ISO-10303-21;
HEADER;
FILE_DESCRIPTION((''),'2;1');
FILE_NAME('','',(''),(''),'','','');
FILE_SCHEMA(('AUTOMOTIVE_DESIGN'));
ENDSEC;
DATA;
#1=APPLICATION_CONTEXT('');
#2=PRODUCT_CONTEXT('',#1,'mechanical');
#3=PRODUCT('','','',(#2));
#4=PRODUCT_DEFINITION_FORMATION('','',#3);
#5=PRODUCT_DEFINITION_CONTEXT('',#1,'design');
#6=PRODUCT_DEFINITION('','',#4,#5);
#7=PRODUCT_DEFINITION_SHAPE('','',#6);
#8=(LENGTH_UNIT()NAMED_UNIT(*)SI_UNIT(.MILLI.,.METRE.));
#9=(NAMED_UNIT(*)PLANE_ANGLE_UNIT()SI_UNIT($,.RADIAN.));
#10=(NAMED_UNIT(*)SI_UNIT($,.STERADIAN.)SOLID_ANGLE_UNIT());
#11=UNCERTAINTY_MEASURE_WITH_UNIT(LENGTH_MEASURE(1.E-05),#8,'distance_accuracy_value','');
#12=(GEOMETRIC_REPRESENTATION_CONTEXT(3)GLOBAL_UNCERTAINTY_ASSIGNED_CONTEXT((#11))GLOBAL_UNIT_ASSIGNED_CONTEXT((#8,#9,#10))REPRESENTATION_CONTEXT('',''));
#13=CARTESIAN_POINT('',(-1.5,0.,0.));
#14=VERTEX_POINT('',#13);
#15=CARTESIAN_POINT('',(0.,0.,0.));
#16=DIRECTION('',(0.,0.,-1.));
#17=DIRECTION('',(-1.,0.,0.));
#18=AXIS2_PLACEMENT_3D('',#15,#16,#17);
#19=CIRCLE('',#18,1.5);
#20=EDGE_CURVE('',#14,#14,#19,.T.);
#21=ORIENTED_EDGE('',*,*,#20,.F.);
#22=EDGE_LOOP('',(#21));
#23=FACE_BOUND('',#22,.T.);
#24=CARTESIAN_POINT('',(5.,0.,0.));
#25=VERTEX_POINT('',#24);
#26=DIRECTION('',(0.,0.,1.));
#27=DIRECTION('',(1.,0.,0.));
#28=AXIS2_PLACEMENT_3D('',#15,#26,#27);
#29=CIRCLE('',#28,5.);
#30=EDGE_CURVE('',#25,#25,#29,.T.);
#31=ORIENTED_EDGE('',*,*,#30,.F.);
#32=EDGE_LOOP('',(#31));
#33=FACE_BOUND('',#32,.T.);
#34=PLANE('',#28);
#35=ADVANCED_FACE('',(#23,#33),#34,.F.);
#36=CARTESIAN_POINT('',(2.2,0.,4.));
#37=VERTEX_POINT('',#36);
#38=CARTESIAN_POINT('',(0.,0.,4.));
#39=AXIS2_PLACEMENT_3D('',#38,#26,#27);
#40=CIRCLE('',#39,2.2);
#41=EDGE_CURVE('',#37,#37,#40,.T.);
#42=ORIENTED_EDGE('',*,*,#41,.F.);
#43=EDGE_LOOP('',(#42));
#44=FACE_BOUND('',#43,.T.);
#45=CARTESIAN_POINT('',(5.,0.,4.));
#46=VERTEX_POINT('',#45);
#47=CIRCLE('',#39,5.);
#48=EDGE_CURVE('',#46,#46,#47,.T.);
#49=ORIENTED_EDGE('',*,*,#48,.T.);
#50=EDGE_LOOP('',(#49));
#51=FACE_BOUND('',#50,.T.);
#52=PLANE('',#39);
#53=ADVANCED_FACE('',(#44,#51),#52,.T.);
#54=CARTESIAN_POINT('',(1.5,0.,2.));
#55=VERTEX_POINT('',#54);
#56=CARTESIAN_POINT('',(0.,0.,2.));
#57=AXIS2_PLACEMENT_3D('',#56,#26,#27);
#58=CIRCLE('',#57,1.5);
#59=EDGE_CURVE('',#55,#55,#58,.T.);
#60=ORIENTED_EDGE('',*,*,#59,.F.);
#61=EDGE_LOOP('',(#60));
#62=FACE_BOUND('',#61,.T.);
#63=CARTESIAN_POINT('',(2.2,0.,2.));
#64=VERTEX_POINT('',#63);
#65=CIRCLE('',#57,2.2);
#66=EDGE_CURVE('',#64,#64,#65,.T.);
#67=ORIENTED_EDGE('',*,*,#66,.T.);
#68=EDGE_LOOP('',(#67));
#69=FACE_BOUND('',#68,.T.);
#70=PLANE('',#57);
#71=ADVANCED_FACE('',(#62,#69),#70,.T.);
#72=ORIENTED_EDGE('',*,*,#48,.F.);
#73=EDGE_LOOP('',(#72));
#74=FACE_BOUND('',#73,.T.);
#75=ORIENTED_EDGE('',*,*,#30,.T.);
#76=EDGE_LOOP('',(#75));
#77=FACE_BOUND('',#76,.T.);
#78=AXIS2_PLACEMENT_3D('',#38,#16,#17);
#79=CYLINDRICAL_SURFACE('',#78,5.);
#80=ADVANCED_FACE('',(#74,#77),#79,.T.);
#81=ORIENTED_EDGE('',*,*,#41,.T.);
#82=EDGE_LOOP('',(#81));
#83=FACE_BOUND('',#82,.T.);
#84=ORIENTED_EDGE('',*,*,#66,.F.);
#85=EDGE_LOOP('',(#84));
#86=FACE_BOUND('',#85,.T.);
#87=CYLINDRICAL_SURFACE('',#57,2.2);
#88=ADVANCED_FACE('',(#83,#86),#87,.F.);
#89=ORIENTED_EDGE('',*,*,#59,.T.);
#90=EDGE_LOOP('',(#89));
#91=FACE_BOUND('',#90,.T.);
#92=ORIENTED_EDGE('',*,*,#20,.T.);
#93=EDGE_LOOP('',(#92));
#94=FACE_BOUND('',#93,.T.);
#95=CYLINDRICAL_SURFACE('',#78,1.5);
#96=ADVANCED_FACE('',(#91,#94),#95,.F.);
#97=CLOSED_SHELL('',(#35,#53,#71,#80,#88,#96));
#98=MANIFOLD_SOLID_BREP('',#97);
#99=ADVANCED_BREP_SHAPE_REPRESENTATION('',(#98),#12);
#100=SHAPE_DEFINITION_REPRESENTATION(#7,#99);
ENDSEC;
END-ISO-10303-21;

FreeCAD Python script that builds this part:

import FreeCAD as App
import Part
import Sketcher

V = App.Vector

doc = App.newDocument("Part")
params = doc.addObject("Spreadsheet::Sheet", "Params")
for row, (alias, value) in enumerate([
    ("sketch1_diameter", "10 mm"),
    ("pad1_length", "4 mm"),
    ("sketch2_diameter", "4.4 mm"),
    ("pocket1_length", "2 mm"),
    ("sketch3_diameter", "3 mm"),
], start=1):
    params.set(f"A{row}", alias)
    params.set(f"B{row}", "=" + value)
    params.setAlias(f"B{row}", alias)

body = doc.addObject("PartDesign::Body", "Body")

# Sketch on XY plane
sketch1 = doc.addObject("Sketcher::SketchObject", "Sketch")
body.addObject(sketch1)
sketch1.AttachmentSupport = (doc.XY_Plane, [""])
sketch1.MapMode = "FlatFace"
sketch1.addGeometry(Part.Circle(V(0, 0, 0), V(0, 0, 1), 5), False)
sketch1.addConstraint([
    Sketcher.Constraint("Coincident", 0, 3, -1, 1),
    Sketcher.Constraint("Diameter", 0, 10.0),
])
sketch1.setExpression("Constraints[1]", "Params.sketch1_diameter")
pad1 = doc.addObject("PartDesign::Pad", "Pad")
body.addObject(pad1)
pad1.Profile = sketch1
pad1.setExpression("Length", "Params.pad1_length")

# Sketch on XY plane
sketch2 = doc.addObject("Sketcher::SketchObject", "Sketch001")
body.addObject(sketch2)
sketch2.AttachmentSupport = (doc.XY_Plane, [""])
sketch2.MapMode = "FlatFace"
sketch2.AttachmentOffset = App.Placement(V(0, 0, 4), App.Rotation())
sketch2.addGeometry(Part.Circle(V(0, 0, 0), V(0, 0, 1), 2.2), False)
sketch2.addConstraint([
    Sketcher.Constraint("Coincident", 0, 3, -1, 1),
    Sketcher.Constraint("Diameter", 0, 4.4),
])
sketch2.setExpression("Constraints[1]", "Params.sketch2_diameter")
pocket1 = doc.addObject("PartDesign::Pocket", "Pocket")
body.addObject(pocket1)
pocket1.Profile = sketch2
pocket1.setExpression("Length", "Params.pocket1_length")

# Sketch on XY plane
sketch3 = doc.addObject("Sketcher::SketchObject", "Sketch002")
body.addObject(sketch3)
sketch3.AttachmentSupport = (doc.XY_Plane, [""])
sketch3.MapMode = "FlatFace"
sketch3.addGeometry(Part.Circle(V(0, 0, 0), V(0, 0, 1), 1.5), False)
sketch3.addConstraint([
    Sketcher.Constraint("Coincident", 0, 3, -1, 1),
    Sketcher.Constraint("Diameter", 0, 3.0),
])
sketch3.setExpression("Constraints[1]", "Params.sketch3_diameter")
pocket2 = doc.addObject("PartDesign::Pocket", "Pocket001")
body.addObject(pocket2)
pocket2.Profile = sketch3
pocket2.Type = "ThroughAll"
pocket2.Reversed = True

doc.recompute()
